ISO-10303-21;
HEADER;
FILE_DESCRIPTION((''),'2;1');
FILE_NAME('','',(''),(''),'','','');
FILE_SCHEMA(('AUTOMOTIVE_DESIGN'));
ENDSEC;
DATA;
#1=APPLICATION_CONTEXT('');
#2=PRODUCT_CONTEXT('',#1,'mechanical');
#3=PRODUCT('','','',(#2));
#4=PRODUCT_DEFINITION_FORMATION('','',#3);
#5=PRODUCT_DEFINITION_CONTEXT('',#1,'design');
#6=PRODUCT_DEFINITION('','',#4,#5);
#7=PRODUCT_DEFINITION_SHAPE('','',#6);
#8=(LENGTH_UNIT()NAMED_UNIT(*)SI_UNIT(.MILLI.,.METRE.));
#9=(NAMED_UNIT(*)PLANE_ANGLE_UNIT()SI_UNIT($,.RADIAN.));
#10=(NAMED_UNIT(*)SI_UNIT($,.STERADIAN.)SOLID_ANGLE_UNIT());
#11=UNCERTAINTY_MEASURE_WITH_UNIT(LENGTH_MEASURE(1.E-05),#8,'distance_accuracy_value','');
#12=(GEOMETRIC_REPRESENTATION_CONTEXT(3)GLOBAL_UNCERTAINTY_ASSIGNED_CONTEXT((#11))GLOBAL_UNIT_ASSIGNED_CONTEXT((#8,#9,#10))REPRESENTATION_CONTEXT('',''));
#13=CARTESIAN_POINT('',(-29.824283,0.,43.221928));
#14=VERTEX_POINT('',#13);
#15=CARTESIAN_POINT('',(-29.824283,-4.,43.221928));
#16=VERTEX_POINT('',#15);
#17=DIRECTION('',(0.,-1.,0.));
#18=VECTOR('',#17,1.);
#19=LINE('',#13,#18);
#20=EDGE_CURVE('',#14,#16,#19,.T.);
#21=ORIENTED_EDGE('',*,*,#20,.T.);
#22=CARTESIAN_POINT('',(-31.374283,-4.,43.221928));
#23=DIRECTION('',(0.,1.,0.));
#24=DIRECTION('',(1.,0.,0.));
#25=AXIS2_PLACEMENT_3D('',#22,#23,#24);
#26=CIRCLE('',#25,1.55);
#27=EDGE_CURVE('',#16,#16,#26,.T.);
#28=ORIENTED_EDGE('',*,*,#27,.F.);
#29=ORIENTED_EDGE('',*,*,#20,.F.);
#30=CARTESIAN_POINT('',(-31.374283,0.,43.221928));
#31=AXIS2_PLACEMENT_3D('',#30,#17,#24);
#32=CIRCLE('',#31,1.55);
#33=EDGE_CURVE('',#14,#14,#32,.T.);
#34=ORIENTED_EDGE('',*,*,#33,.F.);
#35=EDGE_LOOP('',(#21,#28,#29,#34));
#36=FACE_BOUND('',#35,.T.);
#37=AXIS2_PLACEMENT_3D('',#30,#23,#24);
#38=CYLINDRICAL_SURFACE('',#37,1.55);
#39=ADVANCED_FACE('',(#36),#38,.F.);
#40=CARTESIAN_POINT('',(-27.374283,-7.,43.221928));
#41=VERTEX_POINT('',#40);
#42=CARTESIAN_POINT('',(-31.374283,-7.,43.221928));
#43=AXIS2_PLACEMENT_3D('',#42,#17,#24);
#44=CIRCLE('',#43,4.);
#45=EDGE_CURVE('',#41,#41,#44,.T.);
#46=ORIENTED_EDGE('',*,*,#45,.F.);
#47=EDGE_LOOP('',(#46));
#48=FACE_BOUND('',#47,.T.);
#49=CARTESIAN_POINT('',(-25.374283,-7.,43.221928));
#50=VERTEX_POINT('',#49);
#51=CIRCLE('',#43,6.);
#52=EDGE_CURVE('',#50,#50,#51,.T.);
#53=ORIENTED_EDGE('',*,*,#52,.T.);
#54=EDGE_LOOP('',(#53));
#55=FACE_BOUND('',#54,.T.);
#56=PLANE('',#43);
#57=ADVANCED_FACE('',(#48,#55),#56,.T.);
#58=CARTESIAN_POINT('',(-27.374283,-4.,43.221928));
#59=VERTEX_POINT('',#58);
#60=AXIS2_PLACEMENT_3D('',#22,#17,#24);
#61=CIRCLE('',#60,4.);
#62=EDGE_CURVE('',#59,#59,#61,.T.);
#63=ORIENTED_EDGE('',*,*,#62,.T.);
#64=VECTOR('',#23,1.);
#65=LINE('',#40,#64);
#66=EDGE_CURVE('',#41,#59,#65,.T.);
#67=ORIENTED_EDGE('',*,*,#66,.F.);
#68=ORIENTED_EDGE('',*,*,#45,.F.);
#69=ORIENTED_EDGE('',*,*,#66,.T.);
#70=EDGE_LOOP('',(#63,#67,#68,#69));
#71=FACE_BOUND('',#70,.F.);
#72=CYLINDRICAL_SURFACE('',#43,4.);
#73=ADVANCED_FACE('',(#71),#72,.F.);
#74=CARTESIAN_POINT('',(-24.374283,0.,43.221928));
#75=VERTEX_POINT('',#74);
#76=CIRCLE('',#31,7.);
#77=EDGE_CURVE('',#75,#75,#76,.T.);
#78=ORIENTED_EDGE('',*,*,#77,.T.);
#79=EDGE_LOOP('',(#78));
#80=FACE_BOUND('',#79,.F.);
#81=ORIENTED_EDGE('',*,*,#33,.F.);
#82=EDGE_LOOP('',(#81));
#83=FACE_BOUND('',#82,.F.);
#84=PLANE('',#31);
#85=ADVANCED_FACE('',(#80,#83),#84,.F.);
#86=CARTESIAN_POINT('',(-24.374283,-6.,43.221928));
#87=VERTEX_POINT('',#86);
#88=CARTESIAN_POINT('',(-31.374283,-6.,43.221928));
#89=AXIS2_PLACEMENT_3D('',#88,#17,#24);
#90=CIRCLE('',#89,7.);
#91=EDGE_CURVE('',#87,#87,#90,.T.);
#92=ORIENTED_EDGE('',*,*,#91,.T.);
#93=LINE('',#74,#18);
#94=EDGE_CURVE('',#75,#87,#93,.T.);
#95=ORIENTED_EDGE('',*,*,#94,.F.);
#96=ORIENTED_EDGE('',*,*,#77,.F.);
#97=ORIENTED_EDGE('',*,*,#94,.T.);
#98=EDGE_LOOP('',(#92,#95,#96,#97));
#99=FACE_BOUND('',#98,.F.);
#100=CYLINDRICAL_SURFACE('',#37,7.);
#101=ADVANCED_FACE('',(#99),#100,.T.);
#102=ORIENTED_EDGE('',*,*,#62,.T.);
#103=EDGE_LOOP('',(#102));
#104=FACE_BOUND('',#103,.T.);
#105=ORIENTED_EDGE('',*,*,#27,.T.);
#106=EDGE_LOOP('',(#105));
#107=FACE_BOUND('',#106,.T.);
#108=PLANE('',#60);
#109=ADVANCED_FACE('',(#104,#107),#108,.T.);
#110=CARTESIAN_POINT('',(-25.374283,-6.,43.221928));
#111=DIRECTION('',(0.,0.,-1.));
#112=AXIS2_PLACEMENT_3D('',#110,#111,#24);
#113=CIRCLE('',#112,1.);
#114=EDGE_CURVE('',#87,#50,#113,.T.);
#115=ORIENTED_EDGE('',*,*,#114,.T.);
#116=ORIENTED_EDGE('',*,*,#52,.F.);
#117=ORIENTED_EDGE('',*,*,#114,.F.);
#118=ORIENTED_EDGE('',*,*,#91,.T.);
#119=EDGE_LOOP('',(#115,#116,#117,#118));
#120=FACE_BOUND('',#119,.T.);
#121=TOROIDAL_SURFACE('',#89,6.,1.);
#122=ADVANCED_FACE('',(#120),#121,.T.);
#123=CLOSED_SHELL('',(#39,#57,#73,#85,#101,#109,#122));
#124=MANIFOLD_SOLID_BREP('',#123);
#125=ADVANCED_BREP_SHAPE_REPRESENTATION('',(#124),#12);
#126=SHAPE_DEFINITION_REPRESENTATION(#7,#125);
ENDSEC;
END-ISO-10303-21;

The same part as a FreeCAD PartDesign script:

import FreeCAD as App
import Part
import Sketcher

V = App.Vector
Q = App.Units.Quantity


def edges_at(feature, points):
    """Names of the edges that pass closest to the given points."""
    edges = feature.Shape.Edges
    near = lambda p: min(range(len(edges)), key=lambda i: edges[i].distToShape(Part.Vertex(*p))[0])
    return sorted({f"Edge{near(p) + 1}" for p in points})

doc = App.newDocument("Part")
params = doc.addObject("Spreadsheet::Sheet", "Params")
for row, (alias, value) in enumerate([
    ("sketch1_diameter", "14 mm"),
    ("sketch1_diameter2", "3.1 mm"),
    ("pad1_length", "7 mm"),
    ("fillet_radius", "1 mm"),
    ("sketch2_diameter", "8 mm"),
    ("pocket1_length", "3 mm"),
], start=1):
    params.set(f"A{row}", alias)
    params.set(f"B{row}", "=" + value)
    params.setAlias(f"B{row}", alias)

body = doc.addObject("PartDesign::Body", "Body")

sketch1 = body.newObject("Sketcher::SketchObject", "Sketch")
sketch1.AttachmentSupport = (doc.getObject("XZ_Plane"), [""])
sketch1.MapMode = "FlatFace"
sketch1.addGeometry(Part.Circle(V(-31.4, 43.2, 0), V(0, 0, 1), 7), False)
sketch1.addGeometry(Part.Circle(V(-31.4, 43.2, 0), V(0, 0, 1), 1.6), False)
sketch1.addConstraint(Sketcher.Constraint("Coincident", 1, 3, 0, 3))
sketch1.addConstraint(Sketcher.Constraint("Diameter", 0, Q("14 mm")))
sketch1.addConstraint(Sketcher.Constraint("Diameter", 1, Q("3.1 mm")))
sketch1.addConstraint(Sketcher.Constraint("DistanceX", 0, 3, -1, 1, Q("31.374283 mm")))
sketch1.addConstraint(Sketcher.Constraint("DistanceY", -1, 1, 0, 3, Q("43.221928 mm")))
sketch1.setExpression("Constraints[1]", "Params.sketch1_diameter")
sketch1.setExpression("Constraints[2]", "Params.sketch1_diameter2")
pad1 = body.newObject("PartDesign::Pad", "Pad")
pad1.Profile = sketch1
pad1.setExpression("Length", "Params.pad1_length")
doc.recompute()

fillet = body.newObject("PartDesign::Fillet", "Fillet")
fillet.Base = (pad1, edges_at(pad1, [(-38.374, -7, 43.222)]))
fillet.setExpression("Radius", "Params.fillet_radius")

sketch2 = body.newObject("Sketcher::SketchObject", "Sketch001")
sketch2.AttachmentSupport = (doc.getObject("XZ_Plane"), [""])
sketch2.MapMode = "FlatFace"
sketch2.AttachmentOffset = App.Placement(V(0, 0, 7), App.Rotation())
sketch2.addGeometry(Part.Circle(V(-31.4, 43.2, 0), V(0, 0, 1), 4), False)
sketch2.addConstraint(Sketcher.Constraint("Diameter", 0, Q("8 mm")))
sketch2.addConstraint(Sketcher.Constraint("DistanceX", 0, 3, -1, 1, Q("31.374283 mm")))
sketch2.addConstraint(Sketcher.Constraint("DistanceY", -1, 1, 0, 3, Q("43.221928 mm")))
sketch2.setExpression("Constraints[0]", "Params.sketch2_diameter")
pocket1 = body.newObject("PartDesign::Pocket", "Pocket")
pocket1.Profile = sketch2
pocket1.setExpression("Length", "Params.pocket1_length")

doc.recompute()
